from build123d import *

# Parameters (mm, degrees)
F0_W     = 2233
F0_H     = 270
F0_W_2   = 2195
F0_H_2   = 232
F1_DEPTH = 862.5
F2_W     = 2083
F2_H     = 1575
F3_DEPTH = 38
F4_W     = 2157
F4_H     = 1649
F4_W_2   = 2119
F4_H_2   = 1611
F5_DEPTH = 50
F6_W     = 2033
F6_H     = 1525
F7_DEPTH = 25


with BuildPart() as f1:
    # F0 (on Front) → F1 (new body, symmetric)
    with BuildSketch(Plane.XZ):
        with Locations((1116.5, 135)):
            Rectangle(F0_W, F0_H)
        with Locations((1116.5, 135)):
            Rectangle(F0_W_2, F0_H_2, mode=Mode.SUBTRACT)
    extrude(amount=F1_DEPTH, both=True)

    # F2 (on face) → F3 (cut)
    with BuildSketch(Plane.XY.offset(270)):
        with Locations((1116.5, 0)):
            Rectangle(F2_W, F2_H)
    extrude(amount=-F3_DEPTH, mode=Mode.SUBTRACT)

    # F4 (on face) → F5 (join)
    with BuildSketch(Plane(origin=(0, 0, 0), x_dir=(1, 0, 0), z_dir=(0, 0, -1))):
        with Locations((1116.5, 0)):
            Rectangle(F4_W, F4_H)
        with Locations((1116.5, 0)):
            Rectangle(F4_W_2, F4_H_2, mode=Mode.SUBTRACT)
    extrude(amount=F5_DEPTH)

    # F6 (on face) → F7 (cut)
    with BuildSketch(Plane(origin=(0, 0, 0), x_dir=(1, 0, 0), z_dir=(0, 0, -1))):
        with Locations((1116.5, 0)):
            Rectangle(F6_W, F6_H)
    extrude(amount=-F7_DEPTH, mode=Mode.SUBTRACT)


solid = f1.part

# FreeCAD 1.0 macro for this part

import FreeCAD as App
import Part
import Sketcher

V = App.Vector
Q = App.Units.Quantity


def add_polygon(sketch, points):
    """Adds a closed chain of lines whose ends are joined by coincident constraints."""
    first, n = sketch.GeometryCount, len(points)
    for a, b in zip(points, points[1:] + points[:1]):
        sketch.addGeometry(Part.LineSegment(App.Vector(*a, 0), App.Vector(*b, 0)), False)
    for i in range(n):
        sketch.addConstraint(Sketcher.Constraint("Coincident", first + i, 2, first + (i + 1) % n, 1))

doc = App.newDocument("Part")
body = doc.addObject("PartDesign::Body", "Body")

sketch1 = body.newObject("Sketcher::SketchObject", "Sketch")
sketch1.AttachmentSupport = (doc.getObject("XZ_Plane"), [""])
sketch1.MapMode = "FlatFace"
add_polygon(sketch1, [(0, 270), (0, 0), (2233, 0), (2233, 270)])
add_polygon(sketch1, [(2214, 19), (19, 19), (19, 251), (2214, 251)])
sketch1.addConstraint([
    Sketcher.Constraint("Vertical", 0),
    Sketcher.Constraint("Horizontal", 1),
    Sketcher.Constraint("Vertical", 2),
    Sketcher.Constraint("Horizontal", 3),
    Sketcher.Constraint("Horizontal", 4),
    Sketcher.Constraint("Vertical", 5),
    Sketcher.Constraint("Horizontal", 6),
    Sketcher.Constraint("Vertical", 7),
    Sketcher.Constraint("Coincident", 0, 2, -1, 1),
    Sketcher.Constraint("DistanceX", 1, 1, 1, 2, Q("2233 mm")),
    Sketcher.Constraint("DistanceX", 4, 2, 4, 1, Q("2195 mm")),
    Sketcher.Constraint("DistanceY", 0, 2, 0, 1, Q("270 mm")),
    Sketcher.Constraint("DistanceY", 5, 1, 5, 2, Q("232 mm")),
    Sketcher.Constraint("DistanceX", -1, 1, 4, 2, Q("19 mm")),
    Sketcher.Constraint("DistanceY", -1, 1, 4, 2, Q("19 mm")),
])
pad1 = body.newObject("PartDesign::Pad", "Pad")
pad1.Profile = sketch1
pad1.Length = 1725
pad1.Midplane = True

sketch2 = body.newObject("Sketcher::SketchObject", "Sketch001")
sketch2.AttachmentSupport = (doc.getObject("XY_Plane"), [""])
sketch2.MapMode = "FlatFace"
sketch2.AttachmentOffset = App.Placement(V(0, 0, 270), App.Rotation())
add_polygon(sketch2, [(75, 788), (75, -788), (2158, -788), (2158, 788)])
sketch2.addConstraint([
    Sketcher.Constraint("Vertical", 0),
    Sketcher.Constraint("Horizontal", 1),
    Sketcher.Constraint("Vertical", 2),
    Sketcher.Constraint("Horizontal", 3),
    Sketcher.Constraint("DistanceX", 1, 1, 1, 2, Q("2083 mm")),
    Sketcher.Constraint("DistanceY", 0, 2, 0, 1, Q("1575 mm")),
    Sketcher.Constraint("DistanceX", -1, 1, 0, 2, Q("75 mm")),
    Sketcher.Constraint("DistanceY", 0, 2, -1, 1, Q("787.5 mm")),
])
pocket1 = body.newObject("PartDesign::Pocket", "Pocket")
pocket1.Profile = sketch2
pocket1.Length = 38

sketch3 = body.newObject("Sketcher::SketchObject", "Sketch002")
sketch3.AttachmentSupport = (doc.getObject("XY_Plane"), [""])
sketch3.MapMode = "FlatFace"
add_polygon(sketch3, [(38, -824), (38, 824), (2195, 824), (2195, -824)])
add_polygon(sketch3, [(2176, 806), (57, 806), (57, -806), (2176, -806)])
sketch3.addConstraint([
    Sketcher.Constraint("Vertical", 0),
    Sketcher.Constraint("Horizontal", 1),
    Sketcher.Constraint("Vertical", 2),
    Sketcher.Constraint("Horizontal", 3),
    Sketcher.Constraint("Horizontal", 4),
    Sketcher.Constraint("Vertical", 5),
    Sketcher.Constraint("Horizontal", 6),
    Sketcher.Constraint("Vertical", 7),
    Sketcher.Constraint("DistanceX", 1, 1, 1, 2, Q("2157 mm")),
    Sketcher.Constraint("DistanceX", 4, 2, 4, 1, Q("2119 mm")),
    Sketcher.Constraint("DistanceY", 0, 1, 0, 2, Q("1649 mm")),
    Sketcher.Constraint("DistanceY", 5, 2, 5, 1, Q("1611 mm")),
    Sketcher.Constraint("DistanceX", -1, 1, 0, 2, Q("38 mm")),
    Sketcher.Constraint("DistanceX", -1, 1, 4, 2, Q("57 mm")),
    Sketcher.Constraint("DistanceY", 4, 2, 0, 2, Q("19 mm")),
    Sketcher.Constraint("DistanceY", -1, 1, 0, 2, Q("824.5 mm")),
])
pad2 = body.newObject("PartDesign::Pad", "Pad001")
pad2.Profile = sketch3
pad2.Length = 50
pad2.Reversed = True

sketch4 = body.newObject("Sketcher::SketchObject", "Sketch003")
sketch4.AttachmentSupport = (doc.getObject("XY_Plane"), [""])
sketch4.MapMode = "FlatFace"
add_polygon(sketch4, [(100, -762), (100, 762), (2133, 762), (2133, -762)])
sketch4.addConstraint([
    Sketcher.Constraint("Vertical", 0),
    Sketcher.Constraint("Horizontal", 1),
    Sketcher.Constraint("Vertical", 2),
    Sketcher.Constraint("Horizontal", 3),
    Sketcher.Constraint("DistanceX", 1, 1, 1, 2, Q("2033 mm")),
    Sketcher.Constraint("DistanceY", 0, 1, 0, 2, Q("1525 mm")),
    Sketcher.Constraint("DistanceX", -1, 1, 0, 2, Q("100 mm")),
    Sketcher.Constraint("DistanceY", -1, 1, 0, 2, Q("762.5 mm")),
])
pocket2 = body.newObject("PartDesign::Pocket", "Pocket001")
pocket2.Profile = sketch4
pocket2.Length = 25
pocket2.Reversed = True

doc.recompute()
